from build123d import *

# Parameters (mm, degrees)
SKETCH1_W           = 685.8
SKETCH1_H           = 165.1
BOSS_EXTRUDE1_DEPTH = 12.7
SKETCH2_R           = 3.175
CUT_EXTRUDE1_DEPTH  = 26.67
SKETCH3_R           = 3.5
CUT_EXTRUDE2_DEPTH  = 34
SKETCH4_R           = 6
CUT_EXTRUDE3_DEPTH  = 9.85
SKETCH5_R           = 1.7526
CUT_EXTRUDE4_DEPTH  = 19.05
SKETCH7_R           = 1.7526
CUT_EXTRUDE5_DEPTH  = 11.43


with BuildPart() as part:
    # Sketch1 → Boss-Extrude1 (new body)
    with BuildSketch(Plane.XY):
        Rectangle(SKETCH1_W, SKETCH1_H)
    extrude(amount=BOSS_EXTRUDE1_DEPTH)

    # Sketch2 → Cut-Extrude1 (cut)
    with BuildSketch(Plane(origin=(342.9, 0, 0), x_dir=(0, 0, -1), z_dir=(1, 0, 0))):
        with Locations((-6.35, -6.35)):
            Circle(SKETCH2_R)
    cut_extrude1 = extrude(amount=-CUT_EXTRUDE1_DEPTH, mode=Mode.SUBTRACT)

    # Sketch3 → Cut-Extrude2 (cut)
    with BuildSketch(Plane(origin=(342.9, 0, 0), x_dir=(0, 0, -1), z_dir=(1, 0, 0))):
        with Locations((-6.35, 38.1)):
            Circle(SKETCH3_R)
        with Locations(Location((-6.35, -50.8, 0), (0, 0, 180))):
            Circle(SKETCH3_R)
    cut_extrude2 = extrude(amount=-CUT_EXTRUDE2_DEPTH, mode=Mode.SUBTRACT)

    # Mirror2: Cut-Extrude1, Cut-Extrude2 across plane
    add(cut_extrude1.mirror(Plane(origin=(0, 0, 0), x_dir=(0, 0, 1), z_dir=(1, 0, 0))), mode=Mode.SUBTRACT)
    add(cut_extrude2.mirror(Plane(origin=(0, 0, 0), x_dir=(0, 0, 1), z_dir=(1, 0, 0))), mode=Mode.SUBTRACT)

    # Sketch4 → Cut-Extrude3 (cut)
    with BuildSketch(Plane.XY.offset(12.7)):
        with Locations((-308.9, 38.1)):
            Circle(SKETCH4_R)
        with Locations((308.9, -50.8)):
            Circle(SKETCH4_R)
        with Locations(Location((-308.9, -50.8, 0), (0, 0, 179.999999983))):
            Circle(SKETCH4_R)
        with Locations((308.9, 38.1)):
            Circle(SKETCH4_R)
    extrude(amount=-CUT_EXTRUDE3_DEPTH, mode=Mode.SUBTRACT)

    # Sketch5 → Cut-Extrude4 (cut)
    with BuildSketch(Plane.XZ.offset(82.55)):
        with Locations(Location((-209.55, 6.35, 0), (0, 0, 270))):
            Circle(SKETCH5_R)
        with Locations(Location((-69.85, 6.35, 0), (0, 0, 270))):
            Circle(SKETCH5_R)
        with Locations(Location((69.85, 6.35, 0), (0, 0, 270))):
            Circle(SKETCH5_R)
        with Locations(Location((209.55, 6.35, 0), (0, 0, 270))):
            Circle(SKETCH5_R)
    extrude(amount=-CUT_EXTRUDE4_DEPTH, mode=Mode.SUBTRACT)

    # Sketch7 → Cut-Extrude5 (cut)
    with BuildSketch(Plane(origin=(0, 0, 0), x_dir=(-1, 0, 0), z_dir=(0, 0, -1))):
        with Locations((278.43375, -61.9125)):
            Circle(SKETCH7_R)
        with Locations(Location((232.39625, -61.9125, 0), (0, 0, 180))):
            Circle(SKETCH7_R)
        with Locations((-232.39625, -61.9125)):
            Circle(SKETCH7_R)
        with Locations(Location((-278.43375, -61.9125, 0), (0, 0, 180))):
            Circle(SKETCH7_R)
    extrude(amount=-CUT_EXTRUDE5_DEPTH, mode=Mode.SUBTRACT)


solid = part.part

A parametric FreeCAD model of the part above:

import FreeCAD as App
import Part
import Sketcher
from FreeCAD import Vector
Q = App.Units.Quantity


def add_polygon(sketch, points):
    """Adds a closed chain of lines whose ends are joined by coincident constraints."""
    first, n = sketch.GeometryCount, len(points)
    for a, b in zip(points, points[1:] + points[:1]):
        sketch.addGeometry(Part.LineSegment(App.Vector(*a, 0), App.Vector(*b, 0)), False)
    for i in range(n):
        sketch.addConstraint(Sketcher.Constraint("Coincident", first + i, 2, first + (i + 1) % n, 1))

doc = App.newDocument("Part")
body = doc.addObject("PartDesign::Body", "Body")

# Sketch on XY plane
sketch1 = body.newObject("Sketcher::SketchObject", "Sketch")
sketch1.AttachmentSupport = (doc.getObject("XY_Plane"), [""])
sketch1.MapMode = "FlatFace"
add_polygon(sketch1, [(-343, 83), (-343, -83), (343, -83), (343, 83)])  # lines 0-3
sketch1.addConstraint([
    Sketcher.Constraint("Vertical", 0),
    Sketcher.Constraint("Horizontal", 1),
    Sketcher.Constraint("Vertical", 2),
    Sketcher.Constraint("Horizontal", 3),
    Sketcher.Constraint("Symmetric", 0, 2, 2, 2, -1, 1),
    Sketcher.Constraint("DistanceX", 1, 1, 1, 2, Q("27 in")),
    Sketcher.Constraint("DistanceY", 0, 2, 0, 1, Q("6.5 in")),
])
pad1 = body.newObject("PartDesign::Pad", "Pad")
pad1.Profile = sketch1
pad1.Length = Q("0.5 in")

# Sketch on YZ plane
sketch2 = body.newObject("Sketcher::SketchObject", "Sketch001")
sketch2.AttachmentSupport = (doc.getObject("YZ_Plane"), [""])
sketch2.MapMode = "FlatFace"
sketch2.AttachmentOffset = App.Placement(Vector(0, 0, 13.5 * 25.4), App.Rotation())
sketch2.addGeometry(Part.Circle(Vector(-6.3, 6.3, 0), Vector(0, 0, 1), 3.2), False)
sketch2.addConstraint([
    Sketcher.Constraint("Diameter", 0, Q("0.25 in")),
    Sketcher.Constraint("DistanceX", 0, 3, -1, 1, Q("0.25 in")),
    Sketcher.Constraint("DistanceY", -1, 1, 0, 3, Q("0.25 in")),
])
pocket1 = body.newObject("PartDesign::Pocket", "Pocket")
pocket1.Profile = sketch2
pocket1.Length = Q("1.05 in")

# Sketch on YZ plane
sketch3 = body.newObject("Sketcher::SketchObject", "Sketch002")
sketch3.AttachmentSupport = (doc.getObject("YZ_Plane"), [""])
sketch3.MapMode = "FlatFace"
sketch3.AttachmentOffset = App.Placement(Vector(0, 0, 13.5 * 25.4), App.Rotation())
sketch3.addGeometry([
    Part.Circle(Vector(38.1, 6.3, 0), Vector(0, 0, 1), 3.5),
    Part.Circle(Vector(-50.8, 6.3, 0), Vector(0, 0, 1), 3.5),
], False)
sketch3.addConstraint([
    Sketcher.Constraint("Equal", 0, 1),
    Sketcher.Constraint("Horizontal", 0, 3, 1, 3),
    Sketcher.Constraint("DistanceX", 1, 3, -1, 1, Q("2 in")),
    Sketcher.Constraint("DistanceX", -1, 1, 0, 3, Q("1.5 in")),
    Sketcher.Constraint("Diameter", 0, Q("7 mm")),
    Sketcher.Constraint("DistanceY", -1, 1, 0, 3, Q("0.25 in")),
])
pocket2 = body.newObject("PartDesign::Pocket", "Pocket001")
pocket2.Profile = sketch3
pocket2.Length = 34
doc.recompute()

mirrored = body.newObject("PartDesign::Mirrored", "Mirrored")
mirrored.Originals = [pocket1, pocket2]
mirrored.MirrorPlane = (doc.getObject("YZ_Plane"), [""])
body.Tip = mirrored

# Sketch on XY plane
sketch4 = body.newObject("Sketcher::SketchObject", "Sketch003")
sketch4.AttachmentSupport = (doc.getObject("XY_Plane"), [""])
sketch4.MapMode = "FlatFace"
sketch4.AttachmentOffset = App.Placement(Vector(0, 0, 0.5 * 25.4), App.Rotation())
sketch4.addGeometry([
    Part.Circle(Vector(-309, 38, 0), Vector(0, 0, 1), 6),
    Part.Circle(Vector(309, -51, 0), Vector(0, 0, 1), 6),
    Part.Circle(Vector(-309, -51, 0), Vector(0, 0, 1), 6),
    Part.Circle(Vector(309, 38, 0), Vector(0, 0, 1), 6),
], False)
sketch4.addConstraint([
    Sketcher.Constraint("Equal", 0, 1),
    Sketcher.Constraint("Equal", 1, 2),
    Sketcher.Constraint("Equal", 2, 3),
    Sketcher.Constraint("Symmetric", 1, 3, 2, 3, -2),
    Sketcher.Constraint("Symmetric", 0, 3, 3, 3, -2),
    Sketcher.Constraint("Vertical", 0, 3, 2, 3),
    Sketcher.Constraint("DistanceY", 1, 3, -1, 1, Q("2 in")),
    Sketcher.Constraint("DistanceY", -1, 1, 0, 3, Q("1.5 in")),
    Sketcher.Constraint("Diameter", 0, Q("12 mm")),
    Sketcher.Constraint("DistanceX", 0, 3, -1, 1, Q("308.9 mm")),
])
pocket3 = body.newObject("PartDesign::Pocket", "Pocket002")
pocket3.Profile = sketch4
pocket3.Length = 9.85

# Sketch on XZ plane
sketch5 = body.newObject("Sketcher::SketchObject", "Sketch004")
sketch5.AttachmentSupport = (doc.getObject("XZ_Plane"), [""])
sketch5.MapMode = "FlatFace"
sketch5.AttachmentOffset = App.Placement(Vector(0, 0, 3.25 * 25.4), App.Rotation())
sketch5.addGeometry([
    Part.Circle(Vector(-209.6, 6.3, 0), Vector(0, 0, 1), 1.8),
    Part.Circle(Vector(-69.8, 6.3, 0), Vector(0, 0, 1), 1.8),
    Part.Circle(Vector(69.8, 6.3, 0), Vector(0, 0, 1), 1.8),
    Part.Circle(Vector(209.6, 6.3, 0), Vector(0, 0, 1), 1.8),
], False)
sketch5.addConstraint([
    Sketcher.Constraint("Equal", 0, 1),
    Sketcher.Constraint("Equal", 1, 2),
    Sketcher.Constraint("Equal", 2, 3),
    Sketcher.Constraint("Symmetric", 1, 3, 2, 3, -2),
    Sketcher.Constraint("Symmetric", 0, 3, 3, 3, -2),
    Sketcher.Constraint("Horizontal", 0, 3, 1, 3),
    Sketcher.Constraint("Diameter", 0, Q("0.138 in")),
    Sketcher.Constraint("DistanceX", 0, 3, 2, 3, Q("11 in")),
    Sketcher.Constraint("DistanceX", 0, 3, 1, 3, Q("5.5 in")),
    Sketcher.Constraint("DistanceY", -1, 1, 0, 3, Q("0.25 in")),
])
pocket4 = body.newObject("PartDesign::Pocket", "Pocket003")
pocket4.Profile = sketch5
pocket4.Length = Q("0.75 in")

# Sketch on XY plane
sketch6 = body.newObject("Sketcher::SketchObject", "Sketch005")
sketch6.AttachmentSupport = (doc.getObject("XY_Plane"), [""])
sketch6.MapMode = "FlatFace"
sketch6.addGeometry([
    Part.Circle(Vector(-278.4, -61.9, 0), Vector(0, 0, 1), 1.8),
    Part.Circle(Vector(-232.4, -61.9, 0), Vector(0, 0, 1), 1.8),
    Part.Circle(Vector(232.4, -61.9, 0), Vector(0, 0, 1), 1.8),
    Part.Circle(Vector(278.4, -61.9, 0), Vector(0, 0, 1), 1.8),
], False)
sketch6.addConstraint([
    Sketcher.Constraint("Equal", 0, 1),
    Sketcher.Constraint("Equal", 1, 2),
    Sketcher.Constraint("Equal", 2, 3),
    Sketcher.Constraint("Symmetric", 1, 3, 2, 3, -2),
    Sketcher.Constraint("Symmetric", 0, 3, 3, 3, -2),
    Sketcher.Constraint("Horizontal", 0, 3, 1, 3),
    Sketcher.Constraint("Diameter", 0, Q("0.138 in")),
    Sketcher.Constraint("DistanceY", 0, 3, -1, 1, Q("2.4375 in")),
    Sketcher.Constraint("DistanceX", 0, 3, 1, 3, Q("1.8125 in")),
    Sketcher.Constraint("DistanceX", 1, 3, 2, 3, Q("464.7925 mm")),
])
pocket5 = body.newObject("PartDesign::Pocket", "Pocket004")
pocket5.Profile = sketch6
pocket5.Length = Q("0.45 in")
pocket5.Reversed = True

doc.recompute()
